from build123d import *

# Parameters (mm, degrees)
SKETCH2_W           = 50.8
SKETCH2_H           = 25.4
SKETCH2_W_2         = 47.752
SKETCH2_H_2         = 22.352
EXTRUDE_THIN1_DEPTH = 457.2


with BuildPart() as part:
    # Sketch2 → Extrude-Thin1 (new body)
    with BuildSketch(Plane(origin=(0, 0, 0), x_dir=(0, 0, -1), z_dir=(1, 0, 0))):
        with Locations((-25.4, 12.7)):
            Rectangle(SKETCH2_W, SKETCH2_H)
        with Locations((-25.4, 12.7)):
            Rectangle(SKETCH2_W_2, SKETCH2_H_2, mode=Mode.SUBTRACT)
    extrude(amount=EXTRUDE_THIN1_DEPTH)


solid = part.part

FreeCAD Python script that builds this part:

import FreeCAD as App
import Part
import Sketcher

V = App.Vector
Q = App.Units.Quantity

doc = App.newDocument("Part")
body = doc.addObject("PartDesign::Body", "Body")

sketch1 = body.newObject("Sketcher::SketchObject", "Sketch")
sketch1.AttachmentSupport = (doc.getObject("YZ_Plane"), [""])
sketch1.MapMode = "FlatFace"
sketch1.addGeometry([
    Part.LineSegment(V(25.4, 50.8, 0), V(0, 50.8, 0)),
    Part.LineSegment(V(0, 50.8, 0), V(0, 0, 0)),
    Part.LineSegment(V(0, 0, 0), V(25.4, 0, 0)),
    Part.LineSegment(V(25.4, 0, 0), V(25.4, 50.8, 0)),
    Part.LineSegment(V(1.524, 1.524, 0), V(1.524, 49.276, 0)),
    Part.LineSegment(V(1.524, 49.276, 0), V(23.876, 49.276, 0)),
    Part.LineSegment(V(23.876, 49.276, 0), V(23.876, 1.524, 0)),
    Part.LineSegment(V(23.876, 1.524, 0), V(1.524, 1.524, 0)),
], False)
sketch1.addConstraint([
    Sketcher.Constraint("Coincident", 0, 2, 1, 1),
    Sketcher.Constraint("Coincident", 1, 2, 2, 1),
    Sketcher.Constraint("Coincident", 2, 2, 3, 1),
    Sketcher.Constraint("Coincident", 3, 2, 0, 1),
    Sketcher.Constraint("Coincident", 4, 2, 5, 1),
    Sketcher.Constraint("Coincident", 5, 2, 6, 1),
    Sketcher.Constraint("Coincident", 6, 2, 7, 1),
    Sketcher.Constraint("Coincident", 7, 2, 4, 1),
    Sketcher.Constraint("Horizontal", 0),
    Sketcher.Constraint("Vertical", 1),
    Sketcher.Constraint("Horizontal", 2),
    Sketcher.Constraint("Vertical", 3),
    Sketcher.Constraint("Vertical", 4),
    Sketcher.Constraint("Horizontal", 5),
    Sketcher.Constraint("Vertical", 6),
    Sketcher.Constraint("Horizontal", 7),
    Sketcher.Constraint("Coincident", 1, 2, -1, 1),
    Sketcher.Constraint("DistanceX", 0, 2, 0, 1, Q("1 in")),
    Sketcher.Constraint("DistanceY", 1, 2, 1, 1, Q("2 in")),
    Sketcher.Constraint("DistanceX", 5, 1, 5, 2, Q("0.88 in")),
    Sketcher.Constraint("DistanceY", 4, 1, 4, 2, Q("1.88 in")),
    Sketcher.Constraint("DistanceX", -1, 1, 4, 2, Q("0.06 in")),
    Sketcher.Constraint("DistanceY", -1, 1, 4, 2, Q("1.94 in")),
])
pad1 = body.newObject("PartDesign::Pad", "Pad")
pad1.Profile = sketch1
pad1.Length = Q("18 in")

doc.recompute()
